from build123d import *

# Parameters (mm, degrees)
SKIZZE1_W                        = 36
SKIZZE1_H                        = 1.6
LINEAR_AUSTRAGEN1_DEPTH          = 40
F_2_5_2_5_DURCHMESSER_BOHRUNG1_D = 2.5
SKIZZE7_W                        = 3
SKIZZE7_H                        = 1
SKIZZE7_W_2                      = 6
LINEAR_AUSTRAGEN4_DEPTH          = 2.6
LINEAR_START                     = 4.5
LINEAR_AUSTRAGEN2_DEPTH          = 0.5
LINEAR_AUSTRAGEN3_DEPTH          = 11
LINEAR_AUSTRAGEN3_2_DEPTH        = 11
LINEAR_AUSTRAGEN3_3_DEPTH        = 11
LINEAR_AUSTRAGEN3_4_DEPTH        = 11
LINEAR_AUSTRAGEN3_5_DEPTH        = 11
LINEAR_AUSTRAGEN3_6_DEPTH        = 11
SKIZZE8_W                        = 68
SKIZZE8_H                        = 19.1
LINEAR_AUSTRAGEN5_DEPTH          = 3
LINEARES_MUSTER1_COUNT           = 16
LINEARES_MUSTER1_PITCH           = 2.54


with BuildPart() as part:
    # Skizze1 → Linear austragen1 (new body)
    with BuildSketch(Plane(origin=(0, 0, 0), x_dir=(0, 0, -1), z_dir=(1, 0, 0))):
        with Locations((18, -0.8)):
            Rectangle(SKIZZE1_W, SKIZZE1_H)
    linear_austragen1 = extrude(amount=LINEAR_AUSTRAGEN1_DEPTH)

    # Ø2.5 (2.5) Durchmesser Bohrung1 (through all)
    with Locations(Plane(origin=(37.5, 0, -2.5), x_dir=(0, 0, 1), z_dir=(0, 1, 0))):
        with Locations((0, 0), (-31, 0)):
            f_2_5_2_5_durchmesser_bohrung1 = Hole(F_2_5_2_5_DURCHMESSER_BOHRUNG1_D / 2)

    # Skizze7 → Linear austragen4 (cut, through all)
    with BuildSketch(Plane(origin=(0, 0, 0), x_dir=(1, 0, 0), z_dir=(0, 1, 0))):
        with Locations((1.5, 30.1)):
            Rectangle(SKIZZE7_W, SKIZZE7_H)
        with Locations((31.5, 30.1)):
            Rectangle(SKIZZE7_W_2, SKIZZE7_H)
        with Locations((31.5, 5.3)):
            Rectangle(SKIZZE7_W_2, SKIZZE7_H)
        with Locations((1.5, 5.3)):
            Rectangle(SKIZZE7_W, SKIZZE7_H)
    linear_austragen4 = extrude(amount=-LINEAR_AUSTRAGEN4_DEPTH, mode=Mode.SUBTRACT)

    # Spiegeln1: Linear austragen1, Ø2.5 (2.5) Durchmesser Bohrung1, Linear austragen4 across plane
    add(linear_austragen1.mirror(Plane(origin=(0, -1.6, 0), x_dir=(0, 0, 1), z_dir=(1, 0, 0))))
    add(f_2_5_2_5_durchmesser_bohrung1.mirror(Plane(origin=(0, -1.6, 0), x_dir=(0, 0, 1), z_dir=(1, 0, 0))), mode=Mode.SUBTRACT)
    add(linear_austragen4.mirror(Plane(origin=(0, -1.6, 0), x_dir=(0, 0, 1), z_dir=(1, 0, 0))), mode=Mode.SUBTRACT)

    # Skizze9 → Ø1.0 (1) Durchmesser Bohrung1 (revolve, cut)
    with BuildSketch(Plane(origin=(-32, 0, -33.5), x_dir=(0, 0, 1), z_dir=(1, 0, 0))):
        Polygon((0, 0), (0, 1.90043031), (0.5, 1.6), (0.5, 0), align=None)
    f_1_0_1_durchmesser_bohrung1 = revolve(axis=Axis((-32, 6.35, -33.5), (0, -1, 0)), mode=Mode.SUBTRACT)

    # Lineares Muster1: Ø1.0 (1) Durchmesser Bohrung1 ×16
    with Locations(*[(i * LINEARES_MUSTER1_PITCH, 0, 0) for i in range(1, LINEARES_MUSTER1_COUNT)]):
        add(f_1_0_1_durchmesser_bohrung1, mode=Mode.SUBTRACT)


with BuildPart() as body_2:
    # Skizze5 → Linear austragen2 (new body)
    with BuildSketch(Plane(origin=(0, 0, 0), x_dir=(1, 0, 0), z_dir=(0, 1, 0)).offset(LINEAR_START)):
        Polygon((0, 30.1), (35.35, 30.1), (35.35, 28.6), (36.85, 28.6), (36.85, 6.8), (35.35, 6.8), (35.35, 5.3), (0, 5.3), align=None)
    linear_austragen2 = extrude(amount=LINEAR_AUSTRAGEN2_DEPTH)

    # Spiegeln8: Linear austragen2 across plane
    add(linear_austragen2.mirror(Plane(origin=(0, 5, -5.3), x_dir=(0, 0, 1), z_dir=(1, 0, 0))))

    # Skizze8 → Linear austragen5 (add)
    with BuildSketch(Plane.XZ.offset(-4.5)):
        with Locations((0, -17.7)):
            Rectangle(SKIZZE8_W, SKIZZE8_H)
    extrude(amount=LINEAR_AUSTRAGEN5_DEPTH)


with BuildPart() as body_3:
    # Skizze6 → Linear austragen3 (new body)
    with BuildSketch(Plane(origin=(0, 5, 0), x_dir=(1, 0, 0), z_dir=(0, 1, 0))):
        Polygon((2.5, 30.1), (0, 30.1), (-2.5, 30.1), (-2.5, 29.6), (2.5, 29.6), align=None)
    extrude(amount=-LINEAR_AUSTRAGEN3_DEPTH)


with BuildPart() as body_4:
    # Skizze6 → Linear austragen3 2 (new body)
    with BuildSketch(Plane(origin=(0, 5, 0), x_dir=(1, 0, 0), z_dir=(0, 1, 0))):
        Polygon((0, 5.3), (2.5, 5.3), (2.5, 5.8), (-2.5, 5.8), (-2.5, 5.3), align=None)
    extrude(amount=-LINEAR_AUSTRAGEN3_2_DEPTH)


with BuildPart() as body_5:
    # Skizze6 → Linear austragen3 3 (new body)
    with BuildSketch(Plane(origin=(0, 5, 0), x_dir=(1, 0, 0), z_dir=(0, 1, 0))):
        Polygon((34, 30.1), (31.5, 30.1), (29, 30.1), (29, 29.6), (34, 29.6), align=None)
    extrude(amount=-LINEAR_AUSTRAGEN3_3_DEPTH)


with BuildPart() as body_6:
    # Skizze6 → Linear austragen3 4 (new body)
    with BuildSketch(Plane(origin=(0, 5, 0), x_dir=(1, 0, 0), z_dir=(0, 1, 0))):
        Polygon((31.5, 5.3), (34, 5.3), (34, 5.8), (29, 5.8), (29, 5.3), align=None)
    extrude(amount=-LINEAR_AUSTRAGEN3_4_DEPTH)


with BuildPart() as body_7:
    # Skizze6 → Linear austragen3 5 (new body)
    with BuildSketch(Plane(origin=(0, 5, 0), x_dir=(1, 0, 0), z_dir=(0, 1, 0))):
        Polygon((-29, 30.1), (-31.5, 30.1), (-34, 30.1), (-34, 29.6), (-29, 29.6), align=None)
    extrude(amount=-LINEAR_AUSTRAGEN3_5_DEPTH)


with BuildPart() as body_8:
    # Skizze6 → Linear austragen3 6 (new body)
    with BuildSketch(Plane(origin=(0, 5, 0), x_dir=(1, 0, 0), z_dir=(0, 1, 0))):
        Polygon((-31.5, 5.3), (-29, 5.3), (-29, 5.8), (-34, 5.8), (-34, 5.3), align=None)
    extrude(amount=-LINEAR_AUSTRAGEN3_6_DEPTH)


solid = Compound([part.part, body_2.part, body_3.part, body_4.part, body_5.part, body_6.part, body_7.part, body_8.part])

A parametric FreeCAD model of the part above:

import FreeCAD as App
import Part
import Sketcher

V = App.Vector
Q = App.Units.Quantity

doc = App.newDocument("Part")
body = doc.addObject("PartDesign::Body", "Body")

sketch1 = doc.addObject("Sketcher::SketchObject", "Sketch")
body.addObject(sketch1)
sketch1.AttachmentSupport = (doc.YZ_Plane, [""])
sketch1.MapMode = "FlatFace"
sketch1.addGeometry([
    Part.LineSegment(V(0, 0, 0), V(-1.6, 0, 0)),
    Part.LineSegment(V(-1.6, 0, 0), V(-1.6, -36, 0)),
    Part.LineSegment(V(-1.6, -36, 0), V(0, -36, 0)),
    Part.LineSegment(V(0, -36, 0), V(0, 0, 0)),
], False)
sketch1.addConstraint([
    Sketcher.Constraint("Coincident", 0, 2, 1, 1),
    Sketcher.Constraint("Coincident", 1, 2, 2, 1),
    Sketcher.Constraint("Coincident", 2, 2, 3, 1),
    Sketcher.Constraint("Coincident", 3, 2, 0, 1),
    Sketcher.Constraint("Horizontal", 0),
    Sketcher.Constraint("Vertical", 1),
    Sketcher.Constraint("Horizontal", 2),
    Sketcher.Constraint("Vertical", 3),
    Sketcher.Constraint("Coincident", 3, 2, -1, 1),
    Sketcher.Constraint("DistanceY", 1, 2, 1, 1, Q("36 mm")),
    Sketcher.Constraint("DistanceX", 0, 2, 0, 1, Q("1.6 mm")),
])
pad1 = doc.addObject("PartDesign::Pad", "Pad")
body.addObject(pad1)
pad1.Profile = sketch1
pad1.Length = 40

sketch2 = doc.addObject("Sketcher::SketchObject", "Sketch001")
body.addObject(sketch2)
sketch2.AttachmentSupport = (doc.XZ_Plane, [""])
sketch2.MapMode = "FlatFace"
sketch2.addGeometry([
    Part.Circle(V(37.5, -2.5, 0), V(0, 0, 1), 1.2),
    Part.Circle(V(37.5, -33.5, 0), V(0, 0, 1), 1.2),
], False)
sketch2.addConstraint([
    Sketcher.Constraint("Equal", 0, 1),
    Sketcher.Constraint("Vertical", 0, 3, 1, 3),
    Sketcher.Constraint("Diameter", 0, Q("2.5 mm")),
    Sketcher.Constraint("DistanceY", 1, 3, 0, 3, Q("31 mm")),
    Sketcher.Constraint("DistanceX", -1, 1, 0, 3, Q("37.5 mm")),
    Sketcher.Constraint("DistanceY", 0, 3, -1, 1, Q("2.5 mm")),
])
doc.recompute()
hole = doc.addObject("PartDesign::Hole", "Hole")
body.addObject(hole)
hole.Profile = sketch2
hole.ThreadType = "None"
hole.Diameter = 2.5
hole.DepthType = "ThroughAll"
hole.Reversed = True

sketch3 = doc.addObject("Sketcher::SketchObject", "Sketch002")
body.addObject(sketch3)
sketch3.AttachmentSupport = (doc.XZ_Plane, [""])
sketch3.MapMode = "FlatFace"
sketch3.addGeometry([
    Part.LineSegment(V(0, -30.6, 0), V(0, -29.6, 0)),
    Part.LineSegment(V(0, -29.6, 0), V(3, -29.6, 0)),
    Part.LineSegment(V(3, -29.6, 0), V(3, -30.6, 0)),
    Part.LineSegment(V(3, -30.6, 0), V(0, -30.6, 0)),
    Part.LineSegment(V(28.5, -30.6, 0), V(28.5, -29.6, 0)),
    Part.LineSegment(V(28.5, -29.6, 0), V(34.5, -29.6, 0)),
    Part.LineSegment(V(34.5, -29.6, 0), V(34.5, -30.6, 0)),
    Part.LineSegment(V(34.5, -30.6, 0), V(28.5, -30.6, 0)),
    Part.LineSegment(V(28.5, -5.8, 0), V(28.5, -4.8, 0)),
    Part.LineSegment(V(28.5, -4.8, 0), V(34.5, -4.8, 0)),
    Part.LineSegment(V(34.5, -4.8, 0), V(34.5, -5.8, 0)),
    Part.LineSegment(V(34.5, -5.8, 0), V(28.5, -5.8, 0)),
    Part.LineSegment(V(0, -5.8, 0), V(0, -4.8, 0)),
    Part.LineSegment(V(0, -4.8, 0), V(3, -4.8, 0)),
    Part.LineSegment(V(3, -4.8, 0), V(3, -5.8, 0)),
    Part.LineSegment(V(3, -5.8, 0), V(0, -5.8, 0)),
], False)
sketch3.addConstraint([
    Sketcher.Constraint("Coincident", 0, 2, 1, 1),
    Sketcher.Constraint("Coincident", 1, 2, 2, 1),
    Sketcher.Constraint("Coincident", 2, 2, 3, 1),
    Sketcher.Constraint("Coincident", 3, 2, 0, 1),
    Sketcher.Constraint("Coincident", 4, 2, 5, 1),
    Sketcher.Constraint("Coincident", 5, 2, 6, 1),
    Sketcher.Constraint("Coincident", 6, 2, 7, 1),
    Sketcher.Constraint("Coincident", 7, 2, 4, 1),
    Sketcher.Constraint("Coincident", 8, 2, 9, 1),
    Sketcher.Constraint("Coincident", 9, 2, 10, 1),
    Sketcher.Constraint("Coincident", 10, 2, 11, 1),
    Sketcher.Constraint("Coincident", 11, 2, 8, 1),
    Sketcher.Constraint("Coincident", 12, 2, 13, 1),
    Sketcher.Constraint("Coincident", 13, 2, 14, 1),
    Sketcher.Constraint("Coincident", 14, 2, 15, 1),
    Sketcher.Constraint("Coincident", 15, 2, 12, 1),
    Sketcher.Constraint("Vertical", 0),
    Sketcher.Constraint("Horizontal", 1),
    Sketcher.Constraint("Vertical", 2),
    Sketcher.Constraint("Horizontal", 3),
    Sketcher.Constraint("Vertical", 4),
    Sketcher.Constraint("Horizontal", 5),
    Sketcher.Constraint("Vertical", 6),
    Sketcher.Constraint("Horizontal", 7),
    Sketcher.Constraint("Vertical", 8),
    Sketcher.Constraint("Horizontal", 9),
    Sketcher.Constraint("Vertical", 10),
    Sketcher.Constraint("Horizontal", 11),
    Sketcher.Constraint("Vertical", 12),
    Sketcher.Constraint("Horizontal", 13),
    Sketcher.Constraint("Vertical", 14),
    Sketcher.Constraint("Horizontal", 15),
    Sketcher.Constraint("PointOnObject", 0, 2, -2),
    Sketcher.Constraint("PointOnObject", 12, 2, -2),
    Sketcher.Constraint("Horizontal", 1, 2, 4, 2),
    Sketcher.Constraint("Horizontal", 3, 2, 6, 2),
    Sketcher.Constraint("Horizontal", 9, 2, 12, 2),
    Sketcher.Constraint("Horizontal", 11, 2, 14, 2),
    Sketcher.Constraint("Vertical", 7, 2, 8, 2),
    Sketcher.Constraint("Vertical", 6, 2, 9, 2),
    Sketcher.Constraint("Vertical", 2, 2, 13, 2),
    Sketcher.Constraint("Equal", 6, 8),
    Sketcher.Constraint("DistanceX", 1, 1, 1, 2, Q("3 mm")),
    Sketcher.Constraint("DistanceX", 5, 1, 5, 2, Q("6 mm")),
    Sketcher.Constraint("DistanceY", 0, 1, 0, 2, Q("1 mm")),
    Sketcher.Constraint("DistanceY", 0, 2, -1, 1, Q("29.6 mm")),
    Sketcher.Constraint("DistanceX", -1, 1, 4, 2, Q("28.5 mm")),
    Sketcher.Constraint("DistanceY", 8, 2, -1, 1, Q("4.8 mm")),
])
pocket1 = doc.addObject("PartDesign::Pocket", "Pocket")
body.addObject(pocket1)
pocket1.Profile = sketch3
pocket1.Type = "ThroughAll"
pocket1.Reversed = True
doc.recompute()

mirrored = doc.addObject("PartDesign::Mirrored", "Mirrored")
body.addObject(mirrored)
mirrored.Originals = [pad1, hole, pocket1]
mirrored.MirrorPlane = (doc.YZ_Plane, [""])
body.Tip = mirrored

sketch4 = doc.addObject("Sketcher::SketchObject", "Sketch003")
body.addObject(sketch4)
sketch4.AttachmentSupport = (doc.YZ_Plane, [""])
sketch4.MapMode = "FlatFace"
sketch4.AttachmentOffset = App.Placement(V(0, 0, -32), App.Rotation())
sketch4.addGeometry([
    Part.LineSegment(V(-1.9, -33.5, 0), V(0, -33.5, 0)),
    Part.LineSegment(V(0, -33.5, 0), V(0, -33, 0)),
    Part.LineSegment(V(0, -33, 0), V(-1.6, -33, 0)),
    Part.LineSegment(V(-1.6, -33, 0), V(-1.9, -33.5, 0)),
], False)
sketch4.addGeometry(Part.LineSegment(V(0, -33.5, 0), V(-1.9, -33.5, 0)), True)
sketch4.addConstraint([
    Sketcher.Constraint("Coincident", 0, 2, 1, 1),
    Sketcher.Constraint("Coincident", 1, 2, 2, 1),
    Sketcher.Constraint("Coincident", 2, 2, 3, 1),
    Sketcher.Constraint("Coincident", 3, 2, 0, 1),
    Sketcher.Constraint("Horizontal", 0),
    Sketcher.Constraint("Vertical", 1),
    Sketcher.Constraint("Horizontal", 2),
    Sketcher.Constraint("Horizontal", 4),
    Sketcher.Constraint("Coincident", 4, 1, 0, 2),
    Sketcher.Constraint("PointOnObject", 0, 2, -2),
    Sketcher.Constraint("Equal", 0, 4),
    Sketcher.Constraint("Angle", 3, Q("-121 deg")),
    Sketcher.Constraint("DistanceX", 2, 2, 2, 1, Q("1.6 mm")),
    Sketcher.Constraint("DistanceY", 1, 1, 1, 2, Q("0.5 mm")),
    Sketcher.Constraint("DistanceY", 1, 2, -1, 1, Q("33 mm")),
])
groove = doc.addObject("PartDesign::Groove", "Groove")
body.addObject(groove)
groove.Profile = sketch4
groove.ReferenceAxis = (sketch4, ["Axis0"])
groove.Angle = 360
doc.recompute()

linearpattern = doc.addObject("PartDesign::LinearPattern", "LinearPattern")
body.addObject(linearpattern)
linearpattern.Originals = [groove]
linearpattern.Direction = (doc.X_Axis, [""])
linearpattern.Mode = "offset"
linearpattern.Offset = 2.54
linearpattern.Occurrences = 16
body.Tip = linearpattern
body2 = doc.addObject("PartDesign::Body", "Body001")

sketch5 = doc.addObject("Sketcher::SketchObject", "Sketch004")
body2.addObject(sketch5)
sketch5.AttachmentSupport = (doc.getObject("XZ_Plane001"), [""])
sketch5.MapMode = "FlatFace"
sketch5.AttachmentOffset = App.Placement(V(0, 0, -4.5), App.Rotation())
sketch5.addGeometry([
    Part.LineSegment(V(35.4, -30.1, 0), V(0, -30.1, 0)),
    Part.LineSegment(V(0, -30.1, 0), V(0, -5.3, 0)),
    Part.LineSegment(V(0, -5.3, 0), V(35.4, -5.3, 0)),
    Part.LineSegment(V(35.4, -5.3, 0), V(35.4, -6.8, 0)),
    Part.LineSegment(V(35.4, -6.8, 0), V(36.9, -6.8, 0)),
    Part.LineSegment(V(36.9, -6.8, 0), V(36.9, -28.6, 0)),
    Part.LineSegment(V(36.9, -28.6, 0), V(35.4, -28.6, 0)),
    Part.LineSegment(V(35.4, -28.6, 0), V(35.4, -30.1, 0)),
], False)
sketch5.addConstraint([
    Sketcher.Constraint("Coincident", 0, 2, 1, 1),
    Sketcher.Constraint("Coincident", 1, 2, 2, 1),
    Sketcher.Constraint("Coincident", 2, 2, 3, 1),
    Sketcher.Constraint("Coincident", 3, 2, 4, 1),
    Sketcher.Constraint("Coincident", 4, 2, 5, 1),
    Sketcher.Constraint("Coincident", 5, 2, 6, 1),
    Sketcher.Constraint("Coincident", 6, 2, 7, 1),
    Sketcher.Constraint("Coincident", 7, 2, 0, 1),
    Sketcher.Constraint("Horizontal", 0),
    Sketcher.Constraint("Vertical", 1),
    Sketcher.Constraint("Horizontal", 2),
    Sketcher.Constraint("Vertical", 3),
    Sketcher.Constraint("Horizontal", 4),
    Sketcher.Constraint("Vertical", 5),
    Sketcher.Constraint("Horizontal", 6),
    Sketcher.Constraint("Vertical", 7),
    Sketcher.Constraint("PointOnObject", 0, 2, -2),
    Sketcher.Constraint("Vertical", 3, 2, 6, 2),
    Sketcher.Constraint("Equal", 6, 3),
    Sketcher.Constraint("Equal", 3, 7),
    Sketcher.Constraint("DistanceX", 4, 1, 4, 2, Q("1.5 mm")),
    Sketcher.Constraint("DistanceY", 1, 1, 1, 2, Q("24.8 mm")),
    Sketcher.Constraint("DistanceX", 0, 2, 0, 1, Q("35.35 mm")),
    Sketcher.Constraint("DistanceY", 0, 2, -1, 1, Q("30.1 mm")),
])
pad2 = doc.addObject("PartDesign::Pad", "Pad001")
body2.addObject(pad2)
pad2.Profile = sketch5
pad2.Length = 0.5
pad2.Reversed = True
doc.recompute()

mirrored2 = doc.addObject("PartDesign::Mirrored", "Mirrored001")
body2.addObject(mirrored2)
mirrored2.Originals = [pad2]
mirrored2.MirrorPlane = (doc.getObject("YZ_Plane001"), [""])
body2.Tip = mirrored2

sketch6 = doc.addObject("Sketcher::SketchObject", "Sketch005")
body2.addObject(sketch6)
sketch6.AttachmentSupport = (doc.getObject("XZ_Plane001"), [""])
sketch6.MapMode = "FlatFace"
sketch6.AttachmentOffset = App.Placement(V(0, 0, -4.5), App.Rotation())
sketch6.addGeometry([
    Part.LineSegment(V(-34, -8, 0), V(-34, -27, 0)),
    Part.LineSegment(V(-34, -27, 0), V(34, -27, 0)),
    Part.LineSegment(V(34, -27, 0), V(34, -8, 0)),
    Part.LineSegment(V(34, -8, 0), V(-34, -8, 0)),
], False)
sketch6.addConstraint([
    Sketcher.Constraint("Coincident", 0, 2, 1, 1),
    Sketcher.Constraint("Coincident", 1, 2, 2, 1),
    Sketcher.Constraint("Coincident", 2, 2, 3, 1),
    Sketcher.Constraint("Coincident", 3, 2, 0, 1),
    Sketcher.Constraint("Vertical", 0),
    Sketcher.Constraint("Horizontal", 1),
    Sketcher.Constraint("Vertical", 2),
    Sketcher.Constraint("Horizontal", 3),
    Sketcher.Constraint("DistanceX", 1, 1, 1, 2, Q("68 mm")),
    Sketcher.Constraint("DistanceY", 0, 2, 0, 1, Q("19.1 mm")),
    Sketcher.Constraint("DistanceX", 0, 2, -1, 1, Q("34 mm")),
    Sketcher.Constraint("DistanceY", 0, 2, -1, 1, Q("27.25 mm")),
])
pad3 = doc.addObject("PartDesign::Pad", "Pad002")
body2.addObject(pad3)
pad3.Profile = sketch6
pad3.Length = 3
body3 = doc.addObject("PartDesign::Body", "Body002")

sketch7 = doc.addObject("Sketcher::SketchObject", "Sketch006")
body3.addObject(sketch7)
sketch7.AttachmentSupport = (doc.getObject("XZ_Plane002"), [""])
sketch7.MapMode = "FlatFace"
sketch7.AttachmentOffset = App.Placement(V(0, 0, -5), App.Rotation())
sketch7.addGeometry([
    Part.LineSegment(V(2.5, -30.1, 0), V(-2.5, -30.1, 0)),
    Part.LineSegment(V(-2.5, -30.1, 0), V(-2.5, -29.6, 0)),
    Part.LineSegment(V(-2.5, -29.6, 0), V(2.5, -29.6, 0)),
    Part.LineSegment(V(2.5, -29.6, 0), V(2.5, -30.1, 0)),
], False)
sketch7.addConstraint([
    Sketcher.Constraint("Coincident", 0, 2, 1, 1),
    Sketcher.Constraint("Coincident", 1, 2, 2, 1),
    Sketcher.Constraint("Coincident", 2, 2, 3, 1),
    Sketcher.Constraint("Coincident", 3, 2, 0, 1),
    Sketcher.Constraint("Horizontal", 0),
    Sketcher.Constraint("Vertical", 1),
    Sketcher.Constraint("Horizontal", 2),
    Sketcher.Constraint("Vertical", 3),
    Sketcher.Constraint("DistanceX", 0, 2, 0, 1, Q("5 mm")),
    Sketcher.Constraint("DistanceY", 1, 1, 1, 2, Q("0.5 mm")),
    Sketcher.Constraint("DistanceX", 0, 2, -1, 1, Q("2.5 mm")),
    Sketcher.Constraint("DistanceY", 0, 2, -1, 1, Q("30.1 mm")),
])
pad4 = doc.addObject("PartDesign::Pad", "Pad003")
body3.addObject(pad4)
pad4.Profile = sketch7
pad4.Length = 11
body4 = doc.addObject("PartDesign::Body", "Body003")

sketch8 = doc.addObject("Sketcher::SketchObject", "Sketch007")
body4.addObject(sketch8)
sketch8.AttachmentSupport = (doc.getObject("XZ_Plane003"), [""])
sketch8.MapMode = "FlatFace"
sketch8.AttachmentOffset = App.Placement(V(0, 0, -5), App.Rotation())
sketch8.addGeometry([
    Part.LineSegment(V(2.5, -5.3, 0), V(2.5, -5.8, 0)),
    Part.LineSegment(V(2.5, -5.8, 0), V(-2.5, -5.8, 0)),
    Part.LineSegment(V(-2.5, -5.8, 0), V(-2.5, -5.3, 0)),
    Part.LineSegment(V(-2.5, -5.3, 0), V(2.5, -5.3, 0)),
], False)
sketch8.addConstraint([
    Sketcher.Constraint("Coincident", 0, 2, 1, 1),
    Sketcher.Constraint("Coincident", 1, 2, 2, 1),
    Sketcher.Constraint("Coincident", 2, 2, 3, 1),
    Sketcher.Constraint("Coincident", 3, 2, 0, 1),
    Sketcher.Constraint("Vertical", 0),
    Sketcher.Constraint("Horizontal", 1),
    Sketcher.Constraint("Vertical", 2),
    Sketcher.Constraint("Horizontal", 3),
    Sketcher.Constraint("DistanceX", 1, 2, 1, 1, Q("5 mm")),
    Sketcher.Constraint("DistanceY", 0, 2, 0, 1, Q("0.5 mm")),
    Sketcher.Constraint("DistanceX", -1, 1, 0, 2, Q("2.5 mm")),
    Sketcher.Constraint("DistanceY", 0, 2, -1, 1, Q("5.8 mm")),
])
pad5 = doc.addObject("PartDesign::Pad", "Pad004")
body4.addObject(pad5)
pad5.Profile = sketch8
pad5.Length = 11
body5 = doc.addObject("PartDesign::Body", "Body004")

sketch9 = doc.addObject("Sketcher::SketchObject", "Sketch008")
body5.addObject(sketch9)
sketch9.AttachmentSupport = (doc.getObject("XZ_Plane004"), [""])
sketch9.MapMode = "FlatFace"
sketch9.AttachmentOffset = App.Placement(V(0, 0, -5), App.Rotation())
sketch9.addGeometry([
    Part.LineSegment(V(34, -30.1, 0), V(29, -30.1, 0)),
    Part.LineSegment(V(29, -30.1, 0), V(29, -29.6, 0)),
    Part.LineSegment(V(29, -29.6, 0), V(34, -29.6, 0)),
    Part.LineSegment(V(34, -29.6, 0), V(34, -30.1, 0)),
], False)
sketch9.addConstraint([
    Sketcher.Constraint("Coincident", 0, 2, 1, 1),
    Sketcher.Constraint("Coincident", 1, 2, 2, 1),
    Sketcher.Constraint("Coincident", 2, 2, 3, 1),
    Sketcher.Constraint("Coincident", 3, 2, 0, 1),
    Sketcher.Constraint("Horizontal", 0),
    Sketcher.Constraint("Vertical", 1),
    Sketcher.Constraint("Horizontal", 2),
    Sketcher.Constraint("Vertical", 3),
    Sketcher.Constraint("DistanceX", 0, 2, 0, 1, Q("5 mm")),
    Sketcher.Constraint("DistanceY", 1, 1, 1, 2, Q("0.5 mm")),
    Sketcher.Constraint("DistanceX", -1, 1, 0, 2, Q("29 mm")),
    Sketcher.Constraint("DistanceY", 0, 2, -1, 1, Q("30.1 mm")),
])
pad6 = doc.addObject("PartDesign::Pad", "Pad005")
body5.addObject(pad6)
pad6.Profile = sketch9
pad6.Length = 11
body6 = doc.addObject("PartDesign::Body", "Body005")

sketch10 = doc.addObject("Sketcher::SketchObject", "Sketch009")
body6.addObject(sketch10)
sketch10.AttachmentSupport = (doc.getObject("XZ_Plane005"), [""])
sketch10.MapMode = "FlatFace"
sketch10.AttachmentOffset = App.Placement(V(0, 0, -5), App.Rotation())
sketch10.addGeometry([
    Part.LineSegment(V(34, -5.3, 0), V(34, -5.8, 0)),
    Part.LineSegment(V(34, -5.8, 0), V(29, -5.8, 0)),
    Part.LineSegment(V(29, -5.8, 0), V(29, -5.3, 0)),
    Part.LineSegment(V(29, -5.3, 0), V(34, -5.3, 0)),
], False)
sketch10.addConstraint([
    Sketcher.Constraint("Coincident", 0, 2, 1, 1),
    Sketcher.Constraint("Coincident", 1, 2, 2, 1),
    Sketcher.Constraint("Coincident", 2, 2, 3, 1),
    Sketcher.Constraint("Coincident", 3, 2, 0, 1),
    Sketcher.Constraint("Vertical", 0),
    Sketcher.Constraint("Horizontal", 1),
    Sketcher.Constraint("Vertical", 2),
    Sketcher.Constraint("Horizontal", 3),
    Sketcher.Constraint("DistanceX", 1, 2, 1, 1, Q("5 mm")),
    Sketcher.Constraint("DistanceY", 0, 2, 0, 1, Q("0.5 mm")),
    Sketcher.Constraint("DistanceX", -1, 1, 0, 2, Q("34 mm")),
    Sketcher.Constraint("DistanceY", 0, 2, -1, 1, Q("5.8 mm")),
])
pad7 = doc.addObject("PartDesign::Pad", "Pad006")
body6.addObject(pad7)
pad7.Profile = sketch10
pad7.Length = 11
body7 = doc.addObject("PartDesign::Body", "Body006")

sketch11 = doc.addObject("Sketcher::SketchObject", "Sketch010")
body7.addObject(sketch11)
sketch11.AttachmentSupport = (doc.getObject("XZ_Plane006"), [""])
sketch11.MapMode = "FlatFace"
sketch11.AttachmentOffset = App.Placement(V(0, 0, -5), App.Rotation())
sketch11.addGeometry([
    Part.LineSegment(V(-29, -30.1, 0), V(-34, -30.1, 0)),
    Part.LineSegment(V(-34, -30.1, 0), V(-34, -29.6, 0)),
    Part.LineSegment(V(-34, -29.6, 0), V(-29, -29.6, 0)),
    Part.LineSegment(V(-29, -29.6, 0), V(-29, -30.1, 0)),
], False)
sketch11.addConstraint([
    Sketcher.Constraint("Coincident", 0, 2, 1, 1),
    Sketcher.Constraint("Coincident", 1, 2, 2, 1),
    Sketcher.Constraint("Coincident", 2, 2, 3, 1),
    Sketcher.Constraint("Coincident", 3, 2, 0, 1),
    Sketcher.Constraint("Horizontal", 0),
    Sketcher.Constraint("Vertical", 1),
    Sketcher.Constraint("Horizontal", 2),
    Sketcher.Constraint("Vertical", 3),
    Sketcher.Constraint("DistanceX", 0, 2, 0, 1, Q("5 mm")),
    Sketcher.Constraint("DistanceY", 1, 1, 1, 2, Q("0.5 mm")),
    Sketcher.Constraint("DistanceX", 0, 2, -1, 1, Q("34 mm")),
    Sketcher.Constraint("DistanceY", 0, 2, -1, 1, Q("30.1 mm")),
])
pad8 = doc.addObject("PartDesign::Pad", "Pad007")
body7.addObject(pad8)
pad8.Profile = sketch11
pad8.Length = 11
body8 = doc.addObject("PartDesign::Body", "Body007")

sketch12 = doc.addObject("Sketcher::SketchObject", "Sketch011")
body8.addObject(sketch12)
sketch12.AttachmentSupport = (doc.getObject("XZ_Plane007"), [""])
sketch12.MapMode = "FlatFace"
sketch12.AttachmentOffset = App.Placement(V(0, 0, -5), App.Rotation())
sketch12.addGeometry([
    Part.LineSegment(V(-29, -5.3, 0), V(-29, -5.8, 0)),
    Part.LineSegment(V(-29, -5.8, 0), V(-34, -5.8, 0)),
    Part.LineSegment(V(-34, -5.8, 0), V(-34, -5.3, 0)),
    Part.LineSegment(V(-34, -5.3, 0), V(-29, -5.3, 0)),
], False)
sketch12.addConstraint([
    Sketcher.Constraint("Coincident", 0, 2, 1, 1),
    Sketcher.Constraint("Coincident", 1, 2, 2, 1),
    Sketcher.Constraint("Coincident", 2, 2, 3, 1),
    Sketcher.Constraint("Coincident", 3, 2, 0, 1),
    Sketcher.Constraint("Vertical", 0),
    Sketcher.Constraint("Horizontal", 1),
    Sketcher.Constraint("Vertical", 2),
    Sketcher.Constraint("Horizontal", 3),
    Sketcher.Constraint("DistanceX", 1, 2, 1, 1, Q("5 mm")),
    Sketcher.Constraint("DistanceY", 0, 2, 0, 1, Q("0.5 mm")),
    Sketcher.Constraint("DistanceX", 0, 2, -1, 1, Q("29 mm")),
    Sketcher.Constraint("DistanceY", 0, 2, -1, 1, Q("5.8 mm")),
])
pad9 = doc.addObject("PartDesign::Pad", "Pad008")
body8.addObject(pad9)
pad9.Profile = sketch12
pad9.Length = 11

doc.recompute()
